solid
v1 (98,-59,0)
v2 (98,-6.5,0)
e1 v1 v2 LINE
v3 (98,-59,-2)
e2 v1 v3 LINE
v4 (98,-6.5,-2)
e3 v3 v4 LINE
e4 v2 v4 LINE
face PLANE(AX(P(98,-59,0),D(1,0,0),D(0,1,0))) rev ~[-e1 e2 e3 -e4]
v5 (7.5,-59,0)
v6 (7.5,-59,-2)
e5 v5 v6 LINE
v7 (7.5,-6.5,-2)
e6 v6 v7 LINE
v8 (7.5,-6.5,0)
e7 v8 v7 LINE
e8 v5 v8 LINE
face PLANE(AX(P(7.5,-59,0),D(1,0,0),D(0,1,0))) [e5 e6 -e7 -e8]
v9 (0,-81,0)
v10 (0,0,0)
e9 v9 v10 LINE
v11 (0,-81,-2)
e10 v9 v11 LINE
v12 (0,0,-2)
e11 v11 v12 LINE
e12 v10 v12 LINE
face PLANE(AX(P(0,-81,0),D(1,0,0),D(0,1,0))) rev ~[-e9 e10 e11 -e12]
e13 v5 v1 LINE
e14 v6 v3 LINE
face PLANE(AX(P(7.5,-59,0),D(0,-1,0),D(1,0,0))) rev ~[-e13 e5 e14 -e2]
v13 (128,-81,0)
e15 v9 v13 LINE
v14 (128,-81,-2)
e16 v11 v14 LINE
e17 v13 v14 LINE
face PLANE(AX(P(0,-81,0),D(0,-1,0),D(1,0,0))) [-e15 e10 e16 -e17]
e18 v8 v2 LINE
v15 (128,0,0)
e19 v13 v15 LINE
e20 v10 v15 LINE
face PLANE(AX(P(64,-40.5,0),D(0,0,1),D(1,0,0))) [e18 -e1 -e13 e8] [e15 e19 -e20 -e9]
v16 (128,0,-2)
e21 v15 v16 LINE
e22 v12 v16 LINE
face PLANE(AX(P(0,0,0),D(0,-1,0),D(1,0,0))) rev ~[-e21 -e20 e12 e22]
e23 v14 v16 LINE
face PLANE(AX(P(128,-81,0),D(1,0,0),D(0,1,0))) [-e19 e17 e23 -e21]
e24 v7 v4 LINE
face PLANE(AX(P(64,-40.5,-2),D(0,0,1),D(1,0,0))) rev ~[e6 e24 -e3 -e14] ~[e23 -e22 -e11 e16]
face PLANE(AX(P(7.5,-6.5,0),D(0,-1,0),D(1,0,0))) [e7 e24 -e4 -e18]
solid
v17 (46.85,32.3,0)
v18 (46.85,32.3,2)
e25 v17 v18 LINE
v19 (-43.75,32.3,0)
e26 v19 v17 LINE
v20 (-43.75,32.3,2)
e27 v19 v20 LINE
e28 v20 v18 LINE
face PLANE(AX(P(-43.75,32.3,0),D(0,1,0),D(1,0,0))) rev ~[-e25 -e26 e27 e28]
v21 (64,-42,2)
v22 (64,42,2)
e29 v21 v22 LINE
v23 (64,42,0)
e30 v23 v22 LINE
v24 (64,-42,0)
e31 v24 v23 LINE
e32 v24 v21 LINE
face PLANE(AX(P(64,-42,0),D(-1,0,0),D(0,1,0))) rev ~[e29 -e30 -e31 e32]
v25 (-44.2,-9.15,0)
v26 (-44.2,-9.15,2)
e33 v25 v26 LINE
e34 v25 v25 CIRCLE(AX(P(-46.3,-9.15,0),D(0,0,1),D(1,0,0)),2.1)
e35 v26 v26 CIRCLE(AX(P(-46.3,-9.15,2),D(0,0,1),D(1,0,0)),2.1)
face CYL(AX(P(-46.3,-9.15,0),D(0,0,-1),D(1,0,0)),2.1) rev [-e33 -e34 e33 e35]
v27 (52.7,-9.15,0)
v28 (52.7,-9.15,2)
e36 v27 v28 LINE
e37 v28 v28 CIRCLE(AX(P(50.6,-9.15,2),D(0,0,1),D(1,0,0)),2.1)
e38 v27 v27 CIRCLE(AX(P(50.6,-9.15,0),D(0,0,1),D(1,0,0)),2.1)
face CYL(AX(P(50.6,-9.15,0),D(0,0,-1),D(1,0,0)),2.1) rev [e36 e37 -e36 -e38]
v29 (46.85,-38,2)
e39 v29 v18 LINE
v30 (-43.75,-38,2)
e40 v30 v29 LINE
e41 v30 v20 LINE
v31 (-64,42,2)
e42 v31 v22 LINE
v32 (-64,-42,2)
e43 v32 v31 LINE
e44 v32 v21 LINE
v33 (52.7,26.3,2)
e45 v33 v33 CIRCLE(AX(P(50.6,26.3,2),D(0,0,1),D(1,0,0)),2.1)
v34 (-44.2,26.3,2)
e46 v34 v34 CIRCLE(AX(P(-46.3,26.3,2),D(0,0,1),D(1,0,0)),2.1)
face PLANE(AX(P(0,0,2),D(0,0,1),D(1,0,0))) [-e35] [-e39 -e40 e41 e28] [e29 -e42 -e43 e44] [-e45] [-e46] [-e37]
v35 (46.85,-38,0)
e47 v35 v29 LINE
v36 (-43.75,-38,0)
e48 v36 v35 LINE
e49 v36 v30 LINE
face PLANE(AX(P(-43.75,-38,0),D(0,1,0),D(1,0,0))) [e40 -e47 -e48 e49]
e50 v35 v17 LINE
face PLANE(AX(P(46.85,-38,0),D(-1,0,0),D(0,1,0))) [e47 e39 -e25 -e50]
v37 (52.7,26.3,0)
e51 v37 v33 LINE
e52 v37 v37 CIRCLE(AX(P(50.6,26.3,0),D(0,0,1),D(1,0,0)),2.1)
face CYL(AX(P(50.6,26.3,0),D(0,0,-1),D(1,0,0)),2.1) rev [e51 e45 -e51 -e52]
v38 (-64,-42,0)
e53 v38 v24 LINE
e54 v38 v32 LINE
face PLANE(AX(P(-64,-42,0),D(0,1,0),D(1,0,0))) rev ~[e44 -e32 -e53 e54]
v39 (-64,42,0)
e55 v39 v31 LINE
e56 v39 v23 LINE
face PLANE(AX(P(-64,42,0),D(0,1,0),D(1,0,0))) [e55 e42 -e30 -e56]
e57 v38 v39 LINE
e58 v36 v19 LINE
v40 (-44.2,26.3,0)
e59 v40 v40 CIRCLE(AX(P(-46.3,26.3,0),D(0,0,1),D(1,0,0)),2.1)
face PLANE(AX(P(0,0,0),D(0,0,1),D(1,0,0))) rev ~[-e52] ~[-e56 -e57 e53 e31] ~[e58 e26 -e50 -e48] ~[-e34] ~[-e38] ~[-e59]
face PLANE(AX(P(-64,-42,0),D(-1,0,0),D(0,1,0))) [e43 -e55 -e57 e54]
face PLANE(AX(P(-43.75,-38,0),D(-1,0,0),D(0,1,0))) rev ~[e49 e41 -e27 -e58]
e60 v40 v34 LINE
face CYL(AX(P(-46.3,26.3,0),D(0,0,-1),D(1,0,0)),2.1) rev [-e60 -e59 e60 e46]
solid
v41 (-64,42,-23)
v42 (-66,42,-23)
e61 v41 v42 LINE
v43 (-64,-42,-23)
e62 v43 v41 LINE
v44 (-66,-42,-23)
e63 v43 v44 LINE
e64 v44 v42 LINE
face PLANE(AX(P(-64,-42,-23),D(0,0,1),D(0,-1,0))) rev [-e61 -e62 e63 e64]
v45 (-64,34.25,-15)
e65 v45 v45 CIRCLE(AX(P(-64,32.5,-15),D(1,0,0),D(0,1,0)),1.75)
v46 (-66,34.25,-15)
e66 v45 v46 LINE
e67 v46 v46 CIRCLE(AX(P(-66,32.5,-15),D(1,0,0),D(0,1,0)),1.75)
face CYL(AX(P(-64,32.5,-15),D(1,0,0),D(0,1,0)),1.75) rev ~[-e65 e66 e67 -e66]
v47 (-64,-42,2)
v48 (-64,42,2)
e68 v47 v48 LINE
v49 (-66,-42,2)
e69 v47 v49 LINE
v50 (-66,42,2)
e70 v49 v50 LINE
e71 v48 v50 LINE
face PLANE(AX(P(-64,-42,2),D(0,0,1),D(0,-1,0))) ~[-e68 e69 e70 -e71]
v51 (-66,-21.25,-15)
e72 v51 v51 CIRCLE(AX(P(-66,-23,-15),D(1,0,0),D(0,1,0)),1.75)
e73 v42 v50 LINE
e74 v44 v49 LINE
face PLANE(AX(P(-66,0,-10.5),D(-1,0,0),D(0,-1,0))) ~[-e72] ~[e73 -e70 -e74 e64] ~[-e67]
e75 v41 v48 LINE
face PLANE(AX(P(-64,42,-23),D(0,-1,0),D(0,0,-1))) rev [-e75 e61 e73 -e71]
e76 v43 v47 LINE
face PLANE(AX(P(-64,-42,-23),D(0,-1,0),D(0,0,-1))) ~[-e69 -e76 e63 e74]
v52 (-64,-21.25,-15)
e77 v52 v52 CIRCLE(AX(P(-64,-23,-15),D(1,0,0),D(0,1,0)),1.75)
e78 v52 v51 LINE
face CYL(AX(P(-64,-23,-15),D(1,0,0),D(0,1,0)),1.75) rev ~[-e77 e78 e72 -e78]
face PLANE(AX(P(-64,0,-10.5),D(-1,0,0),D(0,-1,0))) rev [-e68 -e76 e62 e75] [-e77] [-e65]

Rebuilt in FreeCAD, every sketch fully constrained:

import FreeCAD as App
import Part
import Sketcher


def add_polygon(sketch, points):
    """Adds a closed chain of lines whose ends are joined by coincident constraints."""
    first, n = sketch.GeometryCount, len(points)
    for a, b in zip(points, points[1:] + points[:1]):
        sketch.addGeometry(Part.LineSegment(App.Vector(*a, 0), App.Vector(*b, 0)), False)
    for i in range(n):
        sketch.addConstraint(Sketcher.Constraint("Coincident", first + i, 2, first + (i + 1) % n, 1))

doc = App.newDocument("Part")
body = doc.addObject("PartDesign::Body", "Body")

sketch1 = body.newObject("Sketcher::SketchObject", "Sketch")
sketch1.AttachmentSupport = (doc.getObject("XY_Plane"), [""])
sketch1.MapMode = "FlatFace"
add_polygon(sketch1, [(0, 0), (0, -81), (128, -81), (128, 0)])
sketch1.addConstraint([
    Sketcher.Constraint("Vertical", 0),
    Sketcher.Constraint("Horizontal", 1),
    Sketcher.Constraint("Vertical", 2),
    Sketcher.Constraint("Horizontal", 3),
    Sketcher.Constraint("Coincident", 3, 2, -1, 1),
    Sketcher.Constraint("DistanceX", 1, 1, 1, 2, 128.0),
    Sketcher.Constraint("DistanceY", 0, 2, 0, 1, 81.0),
])
pad1 = body.newObject("PartDesign::Pad", "Pad")
pad1.Profile = sketch1
pad1.Length = 2
pad1.Reversed = True

sketch2 = body.newObject("Sketcher::SketchObject", "Sketch001")
sketch2.AttachmentSupport = (doc.getObject("XY_Plane"), [""])
sketch2.MapMode = "FlatFace"
add_polygon(sketch2, [(7.5, -6.5), (7.5, -59), (98, -59), (98, -6.5)])
sketch2.addConstraint([
    Sketcher.Constraint("Vertical", 0),
    Sketcher.Constraint("Horizontal", 1),
    Sketcher.Constraint("Vertical", 2),
    Sketcher.Constraint("Horizontal", 3),
    Sketcher.Constraint("DistanceX", 1, 1, 1, 2, 90.5),
    Sketcher.Constraint("DistanceY", 0, 2, 0, 1, 52.5),
    Sketcher.Constraint("DistanceY", 0, 2, -1, 1, 59.0),
    Sketcher.Constraint("DistanceX", -1, 1, 1, 2, 98.0),
])
pocket1 = body.newObject("PartDesign::Pocket", "Pocket")
pocket1.Profile = sketch2
pocket1.Type = "ThroughAll"
body2 = doc.addObject("PartDesign::Body", "Body001")

sketch3 = body2.newObject("Sketcher::SketchObject", "Sketch002")
sketch3.AttachmentSupport = (doc.getObject("XY_Plane001"), [""])
sketch3.MapMode = "FlatFace"
add_polygon(sketch3, [(-64, 42), (-64, -42), (64, -42), (64, 42)])
sketch3.addGeometry(Part.Circle(App.Vector(-46.3, -9.15, 0), App.Vector(0, 0, 1), 2.1), False)
sketch3.addGeometry(Part.Circle(App.Vector(50.6, -9.15, 0), App.Vector(0, 0, 1), 2.1), False)
add_polygon(sketch3, [(46.85, -38), (-43.75, -38), (-43.75, 32.3), (46.85, 32.3)])
sketch3.addGeometry(Part.Circle(App.Vector(-46.3, 26.3, 0), App.Vector(0, 0, 1), 2.1), False)
sketch3.addGeometry(Part.Circle(App.Vector(50.6, 26.3, 0), App.Vector(0, 0, 1), 2.1), False)
sketch3.addConstraint([
    Sketcher.Constraint("Vertical", 0),
    Sketcher.Constraint("Horizontal", 1),
    Sketcher.Constraint("Vertical", 2),
    Sketcher.Constraint("Horizontal", 3),
    Sketcher.Constraint("Horizontal", 6),
    Sketcher.Constraint("Vertical", 7),
    Sketcher.Constraint("Horizontal", 8),
    Sketcher.Constraint("Vertical", 9),
    Sketcher.Constraint("Equal", 4, 5),
    Sketcher.Constraint("Equal", 5, 10),
    Sketcher.Constraint("Equal", 10, 11),
    Sketcher.Constraint("Symmetric", 0, 2, 2, 2, -1, 1),
    Sketcher.Constraint("Horizontal", 4, 3, 5, 3),
    Sketcher.Constraint("Horizontal", 10, 3, 11, 3),
    Sketcher.Constraint("Vertical", 4, 3, 10, 3),
    Sketcher.Constraint("Vertical", 5, 3, 11, 3),
    Sketcher.Constraint("Diameter", 4, 4.2),
    Sketcher.Constraint("DistanceX", 1, 1, 1, 2, 128.0),
    Sketcher.Constraint("DistanceY", 0, 2, 0, 1, 84.0),
    Sketcher.Constraint("DistanceX", 6, 2, 6, 1, 90.6),
    Sketcher.Constraint("DistanceY", 7, 1, 7, 2, 70.3),
    Sketcher.Constraint("DistanceY", 6, 2, -1, 1, 38.0),
    Sketcher.Constraint("DistanceY", 10, 3, 7, 2, 6.0),
    Sketcher.Constraint("DistanceX", 4, 3, -1, 1, 46.3),
    Sketcher.Constraint("DistanceX", -1, 1, 5, 3, 50.6),
    Sketcher.Constraint("DistanceY", 4, 3, -1, 1, 9.15),
    Sketcher.Constraint("DistanceX", 6, 2, -1, 1, 43.75),
])
pad2 = body2.newObject("PartDesign::Pad", "Pad001")
pad2.Profile = sketch3
pad2.Length = 2
body3 = doc.addObject("PartDesign::Body", "Body002")

sketch4 = body3.newObject("Sketcher::SketchObject", "Sketch003")
sketch4.AttachmentSupport = (doc.getObject("YZ_Plane002"), [""])
sketch4.MapMode = "FlatFace"
sketch4.AttachmentOffset = App.Placement(App.Vector(0, 0, 64), App.Rotation())
add_polygon(sketch4, [(-42, 2), (-42, -23), (42, -23), (42, 2)])
sketch4.addGeometry(Part.Circle(App.Vector(-23, -15, 0), App.Vector(0, 0, 1), 1.75), False)
sketch4.addGeometry(Part.Circle(App.Vector(32.5, -15, 0), App.Vector(0, 0, 1), 1.75), False)
sketch4.addConstraint([
    Sketcher.Constraint("Vertical", 0),
    Sketcher.Constraint("Horizontal", 1),
    Sketcher.Constraint("Vertical", 2),
    Sketcher.Constraint("Horizontal", 3),
    Sketcher.Constraint("Equal", 4, 5),
    Sketcher.Constraint("Horizontal", 4, 3, 5, 3),
    Sketcher.Constraint("Diameter", 4, 3.5),
    Sketcher.Constraint("DistanceX", 1, 1, 1, 2, 84.0),
    Sketcher.Constraint("DistanceY", 0, 2, 0, 1, 25.0),
    Sketcher.Constraint("DistanceX", 4, 3, -1, 1, 23.0),
    Sketcher.Constraint("DistanceY", 4, 3, -1, 1, 15.0),
    Sketcher.Constraint("DistanceX", 0, 2, -1, 1, 42.0),
    Sketcher.Constraint("DistanceY", 0, 2, -1, 1, 23.0),
    Sketcher.Constraint("DistanceX", -1, 1, 5, 3, 32.5),
])
pad3 = body3.newObject("PartDesign::Pad", "Pad002")
pad3.Profile = sketch4
pad3.Length = 2
body4 = doc.addObject("PartDesign::Body", "Body003")
doc.recompute()

mirroring = doc.addObject("Part::Mirroring", "Mirroring")
mirroring.Source = body3
mirroring.Base = App.Vector(0, 0, 0)
mirroring.Normal = App.Vector(1, 0, 0)
body4.BaseFeature = mirroring
doc.recompute()
body3.Visibility = False
mirroring.Visibility = False

doc.recompute()
